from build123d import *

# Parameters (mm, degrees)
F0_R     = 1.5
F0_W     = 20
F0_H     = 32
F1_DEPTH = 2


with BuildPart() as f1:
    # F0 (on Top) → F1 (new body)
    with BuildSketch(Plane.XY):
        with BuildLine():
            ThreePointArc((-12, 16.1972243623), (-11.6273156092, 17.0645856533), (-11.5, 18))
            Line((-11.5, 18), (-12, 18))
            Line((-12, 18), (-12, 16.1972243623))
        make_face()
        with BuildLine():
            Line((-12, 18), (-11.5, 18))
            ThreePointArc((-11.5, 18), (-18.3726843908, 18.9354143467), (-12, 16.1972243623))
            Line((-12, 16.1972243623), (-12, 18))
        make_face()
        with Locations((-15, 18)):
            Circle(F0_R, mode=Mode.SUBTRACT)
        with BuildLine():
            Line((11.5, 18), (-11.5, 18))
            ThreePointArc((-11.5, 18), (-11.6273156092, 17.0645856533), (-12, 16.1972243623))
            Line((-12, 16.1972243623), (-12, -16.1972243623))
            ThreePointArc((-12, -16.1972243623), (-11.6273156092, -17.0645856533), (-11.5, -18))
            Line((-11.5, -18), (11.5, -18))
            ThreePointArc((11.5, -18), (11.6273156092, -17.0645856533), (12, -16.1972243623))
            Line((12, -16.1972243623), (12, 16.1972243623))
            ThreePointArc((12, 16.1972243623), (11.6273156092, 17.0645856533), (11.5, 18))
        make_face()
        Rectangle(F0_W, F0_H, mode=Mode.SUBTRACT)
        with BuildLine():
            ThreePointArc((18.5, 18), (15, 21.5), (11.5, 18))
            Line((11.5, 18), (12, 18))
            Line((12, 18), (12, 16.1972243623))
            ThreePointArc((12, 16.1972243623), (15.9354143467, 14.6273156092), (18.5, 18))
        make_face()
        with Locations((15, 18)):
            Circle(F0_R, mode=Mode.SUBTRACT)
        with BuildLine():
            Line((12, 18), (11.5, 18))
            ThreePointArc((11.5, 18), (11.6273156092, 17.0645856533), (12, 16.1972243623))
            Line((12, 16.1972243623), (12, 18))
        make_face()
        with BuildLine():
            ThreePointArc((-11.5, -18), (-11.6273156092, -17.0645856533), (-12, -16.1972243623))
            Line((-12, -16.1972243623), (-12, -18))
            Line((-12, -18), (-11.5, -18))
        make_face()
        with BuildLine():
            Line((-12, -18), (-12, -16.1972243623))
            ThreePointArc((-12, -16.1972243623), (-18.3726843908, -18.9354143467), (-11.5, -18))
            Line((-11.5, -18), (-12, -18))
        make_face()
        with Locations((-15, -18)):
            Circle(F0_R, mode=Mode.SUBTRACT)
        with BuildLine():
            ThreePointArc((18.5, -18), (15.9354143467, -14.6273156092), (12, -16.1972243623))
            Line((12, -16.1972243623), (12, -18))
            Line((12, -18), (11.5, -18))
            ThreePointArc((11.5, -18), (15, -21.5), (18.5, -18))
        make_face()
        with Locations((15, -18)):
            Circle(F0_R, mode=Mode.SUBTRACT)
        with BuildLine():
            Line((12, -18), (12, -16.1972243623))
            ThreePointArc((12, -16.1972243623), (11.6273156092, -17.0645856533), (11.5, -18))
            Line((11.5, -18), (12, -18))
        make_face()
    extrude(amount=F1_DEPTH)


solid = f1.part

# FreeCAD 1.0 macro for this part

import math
import FreeCAD as App
import Part
import Sketcher
Q = App.Units.Quantity


def add_polygon(sketch, points):
    """Adds a closed chain of lines whose ends are joined by coincident constraints."""
    first, n = sketch.GeometryCount, len(points)
    for a, b in zip(points, points[1:] + points[:1]):
        sketch.addGeometry(Part.LineSegment(App.Vector(*a, 0), App.Vector(*b, 0)), False)
    for i in range(n):
        sketch.addConstraint(Sketcher.Constraint("Coincident", first + i, 2, first + (i + 1) % n, 1))

doc = App.newDocument("Part")
body = doc.addObject("PartDesign::Body", "Body")

sketch1 = body.newObject("Sketcher::SketchObject", "Sketch")
sketch1.AttachmentSupport = (doc.getObject("XY_Plane"), [""])
sketch1.MapMode = "FlatFace"
sketch1.addGeometry(Part.ArcOfCircle(Part.Circle(App.Vector(-15, 18, 0), App.Vector(0, 0, 1), 3.5), math.radians(0), math.radians(328.997281)), False)
sketch1.addGeometry(Part.LineSegment(App.Vector(-12, 16.197224, 0), App.Vector(-12, -16.197224, 0)), False)
sketch1.addGeometry(Part.ArcOfCircle(Part.Circle(App.Vector(-15, -18, 0), App.Vector(0, 0, 1), 3.5), math.radians(31.002719), math.radians(360)), False)
sketch1.addGeometry(Part.LineSegment(App.Vector(-11.5, -18, 0), App.Vector(11.5, -18, 0)), False)
sketch1.addGeometry(Part.ArcOfCircle(Part.Circle(App.Vector(15, -18, 0), App.Vector(0, 0, 1), 3.5), math.radians(180), math.radians(508.997281)), False)
sketch1.addGeometry(Part.LineSegment(App.Vector(12, -16.197224, 0), App.Vector(12, 16.197224, 0)), False)
sketch1.addGeometry(Part.ArcOfCircle(Part.Circle(App.Vector(15, 18, 0), App.Vector(0, 0, 1), 3.5), math.radians(-148.997281), math.radians(180)), False)
sketch1.addGeometry(Part.LineSegment(App.Vector(11.5, 18, 0), App.Vector(-11.5, 18, 0)), False)
sketch1.addGeometry(Part.Circle(App.Vector(-15, -18, 0), App.Vector(0, 0, 1), 1.5), False)
sketch1.addGeometry(Part.Circle(App.Vector(-15, 18, 0), App.Vector(0, 0, 1), 1.5), False)
add_polygon(sketch1, [(10, -16), (-10, -16), (-10, 16), (10, 16)])
sketch1.addGeometry(Part.Circle(App.Vector(15, 18, 0), App.Vector(0, 0, 1), 1.5), False)
sketch1.addGeometry(Part.Circle(App.Vector(15, -18, 0), App.Vector(0, 0, 1), 1.5), False)
sketch1.addConstraint(Sketcher.Constraint("Coincident", 0, 2, 1, 1))
sketch1.addConstraint(Sketcher.Constraint("Coincident", 1, 2, 2, 1))
sketch1.addConstraint(Sketcher.Constraint("Coincident", 2, 2, 3, 1))
sketch1.addConstraint(Sketcher.Constraint("Coincident", 3, 2, 4, 1))
sketch1.addConstraint(Sketcher.Constraint("Coincident", 4, 2, 5, 1))
sketch1.addConstraint(Sketcher.Constraint("Coincident", 5, 2, 6, 1))
sketch1.addConstraint(Sketcher.Constraint("Coincident", 6, 2, 7, 1))
sketch1.addConstraint(Sketcher.Constraint("Coincident", 7, 2, 0, 1))
sketch1.addConstraint(Sketcher.Constraint("Vertical", 1))
sketch1.addConstraint(Sketcher.Constraint("Horizontal", 3))
sketch1.addConstraint(Sketcher.Constraint("Vertical", 5))
sketch1.addConstraint(Sketcher.Constraint("Horizontal", 7))
sketch1.addConstraint(Sketcher.Constraint("Horizontal", 10))
sketch1.addConstraint(Sketcher.Constraint("Vertical", 11))
sketch1.addConstraint(Sketcher.Constraint("Horizontal", 12))
sketch1.addConstraint(Sketcher.Constraint("Vertical", 13))
sketch1.addConstraint(Sketcher.Constraint("Coincident", 8, 3, 2, 3))
sketch1.addConstraint(Sketcher.Constraint("Coincident", 9, 3, 0, 3))
sketch1.addConstraint(Sketcher.Constraint("Coincident", 14, 3, 6, 3))
sketch1.addConstraint(Sketcher.Constraint("Coincident", 15, 3, 4, 3))
sketch1.addConstraint(Sketcher.Constraint("Equal", 0, 2))
sketch1.addConstraint(Sketcher.Constraint("Equal", 2, 4))
sketch1.addConstraint(Sketcher.Constraint("Equal", 4, 6))
sketch1.addConstraint(Sketcher.Constraint("Equal", 8, 9))
sketch1.addConstraint(Sketcher.Constraint("Equal", 9, 14))
sketch1.addConstraint(Sketcher.Constraint("Equal", 14, 15))
sketch1.addConstraint(Sketcher.Constraint("Symmetric", 0, 3, 4, 3, -1, 1))
sketch1.addConstraint(Sketcher.Constraint("Symmetric", 2, 3, 6, 3, -1, 1))
sketch1.addConstraint(Sketcher.Constraint("Symmetric", 10, 2, 12, 2, -1, 1))
sketch1.addConstraint(Sketcher.Constraint("Symmetric", 2, 3, 4, 3, -2))
sketch1.addConstraint(Sketcher.Constraint("Horizontal", 15, 3, 2, 2))
sketch1.addConstraint(Sketcher.Constraint("Horizontal", 1, 2, 4, 2))
sketch1.addConstraint(Sketcher.Constraint("Horizontal", 14, 3, 6, 2))
sketch1.addConstraint(Sketcher.Constraint("Diameter", 8, Q("3 mm")))
sketch1.addConstraint(Sketcher.Constraint("Radius", 0, Q("3.5 mm")))
sketch1.addConstraint(Sketcher.Constraint("DistanceX", 3, 1, 3, 2, Q("23 mm")))
sketch1.addConstraint(Sketcher.Constraint("DistanceX", 10, 2, 10, 1, Q("20 mm")))
sketch1.addConstraint(Sketcher.Constraint("DistanceY", 11, 1, 11, 2, Q("32 mm")))
sketch1.addConstraint(Sketcher.Constraint("DistanceY", -1, 1, 0, 3, Q("18 mm")))
sketch1.addConstraint(Sketcher.Constraint("DistanceX", 0, 2, -1, 1, Q("12 mm")))
pad1 = body.newObject("PartDesign::Pad", "Pad")
pad1.Profile = sketch1
pad1.Length = 2

doc.recompute()
